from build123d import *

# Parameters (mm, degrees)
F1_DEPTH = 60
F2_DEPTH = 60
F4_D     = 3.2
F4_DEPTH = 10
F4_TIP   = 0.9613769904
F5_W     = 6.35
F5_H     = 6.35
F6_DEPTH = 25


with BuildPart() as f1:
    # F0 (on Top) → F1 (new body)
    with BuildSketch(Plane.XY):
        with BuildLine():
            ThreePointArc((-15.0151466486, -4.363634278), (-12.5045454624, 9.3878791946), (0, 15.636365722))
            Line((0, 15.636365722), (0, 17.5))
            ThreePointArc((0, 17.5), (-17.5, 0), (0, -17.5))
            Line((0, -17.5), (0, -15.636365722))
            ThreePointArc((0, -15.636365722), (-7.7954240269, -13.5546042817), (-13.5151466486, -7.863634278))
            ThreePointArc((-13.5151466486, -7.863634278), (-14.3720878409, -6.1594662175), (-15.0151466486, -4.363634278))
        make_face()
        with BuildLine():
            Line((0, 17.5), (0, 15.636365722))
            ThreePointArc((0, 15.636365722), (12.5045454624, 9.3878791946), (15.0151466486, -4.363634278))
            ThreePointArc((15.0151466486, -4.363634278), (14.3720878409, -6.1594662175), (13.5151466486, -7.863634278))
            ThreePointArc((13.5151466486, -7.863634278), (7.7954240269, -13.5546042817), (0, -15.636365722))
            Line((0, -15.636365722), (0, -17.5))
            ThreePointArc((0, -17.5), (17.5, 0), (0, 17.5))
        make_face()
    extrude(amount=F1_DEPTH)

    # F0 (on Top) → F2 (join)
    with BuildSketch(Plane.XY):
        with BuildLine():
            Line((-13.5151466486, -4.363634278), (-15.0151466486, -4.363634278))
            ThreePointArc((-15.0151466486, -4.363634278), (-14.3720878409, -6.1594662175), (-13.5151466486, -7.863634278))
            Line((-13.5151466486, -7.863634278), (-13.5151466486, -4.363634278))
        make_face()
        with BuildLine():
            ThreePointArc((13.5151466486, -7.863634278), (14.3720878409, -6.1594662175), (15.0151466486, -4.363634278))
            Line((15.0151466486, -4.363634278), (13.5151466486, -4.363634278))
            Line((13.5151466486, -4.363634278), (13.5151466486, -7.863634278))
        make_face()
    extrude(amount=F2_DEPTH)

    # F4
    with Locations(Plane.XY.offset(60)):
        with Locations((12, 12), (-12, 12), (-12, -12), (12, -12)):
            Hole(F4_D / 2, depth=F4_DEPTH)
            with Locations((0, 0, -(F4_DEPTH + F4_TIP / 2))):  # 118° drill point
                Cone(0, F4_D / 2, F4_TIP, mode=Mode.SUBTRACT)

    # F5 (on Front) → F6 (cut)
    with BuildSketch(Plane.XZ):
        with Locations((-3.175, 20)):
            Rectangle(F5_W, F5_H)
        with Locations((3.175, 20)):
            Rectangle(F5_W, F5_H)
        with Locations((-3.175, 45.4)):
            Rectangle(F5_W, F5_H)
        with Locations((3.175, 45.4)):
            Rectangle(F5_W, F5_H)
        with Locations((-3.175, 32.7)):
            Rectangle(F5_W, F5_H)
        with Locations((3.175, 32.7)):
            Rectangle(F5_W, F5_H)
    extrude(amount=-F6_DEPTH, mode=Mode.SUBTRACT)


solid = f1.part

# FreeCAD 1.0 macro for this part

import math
import FreeCAD as App
import Part
import Sketcher
from FreeCAD import Vector

doc = App.newDocument("Part")
body = doc.addObject("PartDesign::Body", "Body")

# Sketch on XY plane
sketch1 = body.newObject("Sketcher::SketchObject", "Sketch")
sketch1.AttachmentSupport = (doc.getObject("XY_Plane"), [""])
sketch1.MapMode = "FlatFace"
sketch1.addGeometry(Part.Circle(Vector(0, 0, 0), Vector(0, 0, 1), 17.5), False)
sketch1.addGeometry(Part.ArcOfCircle(Part.Circle(Vector(0, 0, 0), Vector(0, 0, 1), 15.6), math.radians(90), math.radians(196)), False)
sketch1.addGeometry(Part.ArcOfCircle(Part.Circle(Vector(0, 0, 0), Vector(0, 0, 1), 15.6), math.radians(-16), math.radians(90)), False)
sketch1.addGeometry(Part.ArcOfCircle(Part.Circle(Vector(0, 0, 0), Vector(0, 0, 1), 15.6), math.radians(-30.19), math.radians(-16.2)), False)
sketch1.addGeometry(Part.ArcOfCircle(Part.Circle(Vector(0, 0, 0), Vector(0, 0, 1), 15.6), math.radians(-90), math.radians(-30)), False)
sketch1.addGeometry(Part.ArcOfCircle(Part.Circle(Vector(0, 0, 0), Vector(0, 0, 1), 15.6), math.radians(-150), math.radians(-90)), False)
sketch1.addGeometry(Part.ArcOfCircle(Part.Circle(Vector(0, 0, 0), Vector(0, 0, 1), 15.6), math.radians(-163.8), math.radians(-149.81)), False)
sketch1.addConstraint(Sketcher.Constraint("Tangent", 1, 1, 2, 2))
sketch1.addConstraint(Sketcher.Constraint("Tangent", 2, 1, 3, 2))
sketch1.addConstraint(Sketcher.Constraint("Tangent", 3, 1, 4, 2))
sketch1.addConstraint(Sketcher.Constraint("Tangent", 4, 1, 5, 2))
sketch1.addConstraint(Sketcher.Constraint("Tangent", 5, 1, 6, 2))
sketch1.addConstraint(Sketcher.Constraint("Tangent", 6, 1, 1, 2))
sketch1.addConstraint(Sketcher.Constraint("Coincident", 0, 3, -1, 1))
sketch1.addConstraint(Sketcher.Constraint("Coincident", 1, 3, -1, 1))
sketch1.addConstraint(Sketcher.Constraint("Coincident", 3, 3, -1, 1))
sketch1.addConstraint(Sketcher.Constraint("Equal", 3, 4))
sketch1.addConstraint(Sketcher.Constraint("PointOnObject", 1, 1, -2))
sketch1.addConstraint(Sketcher.Constraint("PointOnObject", 4, 1, -2))
sketch1.addConstraint(Sketcher.Constraint("Horizontal", 3, 1, 5, 1))
sketch1.addConstraint(Sketcher.Constraint("Horizontal", 2, 1, 6, 1))
sketch1.addConstraint(Sketcher.Constraint("Diameter", 0, 35.0))
sketch1.addConstraint(Sketcher.Constraint("DistanceX", 3, 1, 2, 1, 1.5))
sketch1.addConstraint(Sketcher.Constraint("DistanceY", 3, 1, 2, 1, 3.5))
sketch1.addConstraint(Sketcher.Constraint("Radius", 1, 15.636366))
pad1 = body.newObject("PartDesign::Pad", "Pad")
pad1.Profile = sketch1
pad1.Length = 60

# Sketch on XY plane
sketch2 = body.newObject("Sketcher::SketchObject", "Sketch001")
sketch2.AttachmentSupport = (doc.getObject("XY_Plane"), [""])
sketch2.MapMode = "FlatFace"
sketch2.addGeometry(Part.LineSegment(Vector(-13.5, -4.4, 0), Vector(-15, -4.4, 0)), False)
sketch2.addGeometry(Part.ArcOfCircle(Part.Circle(Vector(0, 0, 0), Vector(0, 0, 1), 15.6), math.radians(-163.8), math.radians(-149.81)), False)
sketch2.addGeometry(Part.LineSegment(Vector(-13.5, -7.9, 0), Vector(-13.5, -4.4, 0)), False)
sketch2.addGeometry(Part.ArcOfCircle(Part.Circle(Vector(0, 0, 0), Vector(0, 0, 1), 15.6), math.radians(-30.19), math.radians(-16.2)), False)
sketch2.addGeometry(Part.LineSegment(Vector(15, -4.4, 0), Vector(13.5, -4.4, 0)), False)
sketch2.addGeometry(Part.LineSegment(Vector(13.5, -4.4, 0), Vector(13.5, -7.9, 0)), False)
sketch2.addConstraint(Sketcher.Constraint("Coincident", 0, 2, 1, 1))
sketch2.addConstraint(Sketcher.Constraint("Coincident", 1, 2, 2, 1))
sketch2.addConstraint(Sketcher.Constraint("Coincident", 2, 2, 0, 1))
sketch2.addConstraint(Sketcher.Constraint("Coincident", 3, 2, 4, 1))
sketch2.addConstraint(Sketcher.Constraint("Coincident", 4, 2, 5, 1))
sketch2.addConstraint(Sketcher.Constraint("Coincident", 5, 2, 3, 1))
sketch2.addConstraint(Sketcher.Constraint("Horizontal", 0))
sketch2.addConstraint(Sketcher.Constraint("Vertical", 2))
sketch2.addConstraint(Sketcher.Constraint("Horizontal", 4))
sketch2.addConstraint(Sketcher.Constraint("Vertical", 5))
sketch2.addConstraint(Sketcher.Constraint("Coincident", 1, 3, -1, 1))
sketch2.addConstraint(Sketcher.Constraint("Coincident", 3, 3, -1, 1))
sketch2.addConstraint(Sketcher.Constraint("Equal", 1, 3))
sketch2.addConstraint(Sketcher.Constraint("Symmetric", 2, 2, 4, 2, -2))
sketch2.addConstraint(Sketcher.Constraint("DistanceX", 0, 2, 0, 1, 1.5))
sketch2.addConstraint(Sketcher.Constraint("DistanceY", 2, 1, 2, 2, 3.5))
sketch2.addConstraint(Sketcher.Constraint("Radius", 1, 15.636366))
pad2 = body.newObject("PartDesign::Pad", "Pad001")
pad2.Profile = sketch2
pad2.Length = 60

# Sketch on XY plane
sketch3 = body.newObject("Sketcher::SketchObject", "Sketch002")
sketch3.AttachmentSupport = (doc.getObject("XY_Plane"), [""])
sketch3.MapMode = "FlatFace"
sketch3.AttachmentOffset = App.Placement(Vector(0, 0, 60), App.Rotation())
sketch3.addGeometry(Part.Circle(Vector(12, 12, 0), Vector(0, 0, 1), 1.6), False)
sketch3.addGeometry(Part.Circle(Vector(-12, 12, 0), Vector(0, 0, 1), 1.6), False)
sketch3.addGeometry(Part.Circle(Vector(-12, -12, 0), Vector(0, 0, 1), 1.6), False)
sketch3.addGeometry(Part.Circle(Vector(12, -12, 0), Vector(0, 0, 1), 1.6), False)
sketch3.addConstraint(Sketcher.Constraint("Equal", 0, 1))
sketch3.addConstraint(Sketcher.Constraint("Equal", 1, 2))
sketch3.addConstraint(Sketcher.Constraint("Equal", 2, 3))
sketch3.addConstraint(Sketcher.Constraint("Symmetric", 0, 3, 2, 3, -1, 1))
sketch3.addConstraint(Sketcher.Constraint("Symmetric", 1, 3, 3, 3, -1, 1))
sketch3.addConstraint(Sketcher.Constraint("Symmetric", 0, 3, 1, 3, -2))
sketch3.addConstraint(Sketcher.Constraint("Diameter", 0, 3.2))
sketch3.addConstraint(Sketcher.Constraint("DistanceX", -1, 1, 0, 3, 12.0))
sketch3.addConstraint(Sketcher.Constraint("DistanceY", -1, 1, 0, 3, 12.0))
doc.recompute()
hole = body.newObject("PartDesign::Hole", "Hole")
hole.Profile = sketch3
hole.ThreadType = "None"
hole.Diameter = 3.2
hole.DepthType = "Dimension"
hole.Depth = 10
hole.DrillPoint = "Angled"
hole.DrillPointAngle = 118

# Sketch on XZ plane
sketch4 = body.newObject("Sketcher::SketchObject", "Sketch003")
sketch4.AttachmentSupport = (doc.getObject("XZ_Plane"), [""])
sketch4.MapMode = "FlatFace"
sketch4.addGeometry(Part.LineSegment(Vector(-6, 23, 0), Vector(-6, 17, 0)), False)
sketch4.addGeometry(Part.LineSegment(Vector(-6, 17, 0), Vector(6, 17, 0)), False)
sketch4.addGeometry(Part.LineSegment(Vector(6, 17, 0), Vector(6, 23, 0)), False)
sketch4.addGeometry(Part.LineSegment(Vector(6, 23, 0), Vector(-6, 23, 0)), False)
sketch4.addGeometry(Part.LineSegment(Vector(-6, 49, 0), Vector(-6, 42, 0)), False)
sketch4.addGeometry(Part.LineSegment(Vector(-6, 42, 0), Vector(6, 42, 0)), False)
sketch4.addGeometry(Part.LineSegment(Vector(6, 42, 0), Vector(6, 49, 0)), False)
sketch4.addGeometry(Part.LineSegment(Vector(6, 49, 0), Vector(-6, 49, 0)), False)
sketch4.addGeometry(Part.LineSegment(Vector(-6, 36, 0), Vector(-6, 30, 0)), False)
sketch4.addGeometry(Part.LineSegment(Vector(-6, 30, 0), Vector(6, 30, 0)), False)
sketch4.addGeometry(Part.LineSegment(Vector(6, 30, 0), Vector(6, 36, 0)), False)
sketch4.addGeometry(Part.LineSegment(Vector(6, 36, 0), Vector(-6, 36, 0)), False)
sketch4.addConstraint(Sketcher.Constraint("Coincident", 0, 2, 1, 1))
sketch4.addConstraint(Sketcher.Constraint("Coincident", 1, 2, 2, 1))
sketch4.addConstraint(Sketcher.Constraint("Coincident", 2, 2, 3, 1))
sketch4.addConstraint(Sketcher.Constraint("Coincident", 3, 2, 0, 1))
sketch4.addConstraint(Sketcher.Constraint("Coincident", 4, 2, 5, 1))
sketch4.addConstraint(Sketcher.Constraint("Coincident", 5, 2, 6, 1))
sketch4.addConstraint(Sketcher.Constraint("Coincident", 6, 2, 7, 1))
sketch4.addConstraint(Sketcher.Constraint("Coincident", 7, 2, 4, 1))
sketch4.addConstraint(Sketcher.Constraint("Coincident", 8, 2, 9, 1))
sketch4.addConstraint(Sketcher.Constraint("Coincident", 9, 2, 10, 1))
sketch4.addConstraint(Sketcher.Constraint("Coincident", 10, 2, 11, 1))
sketch4.addConstraint(Sketcher.Constraint("Coincident", 11, 2, 8, 1))
sketch4.addConstraint(Sketcher.Constraint("Vertical", 0))
sketch4.addConstraint(Sketcher.Constraint("Horizontal", 1))
sketch4.addConstraint(Sketcher.Constraint("Vertical", 2))
sketch4.addConstraint(Sketcher.Constraint("Horizontal", 3))
sketch4.addConstraint(Sketcher.Constraint("Vertical", 4))
sketch4.addConstraint(Sketcher.Constraint("Horizontal", 5))
sketch4.addConstraint(Sketcher.Constraint("Vertical", 6))
sketch4.addConstraint(Sketcher.Constraint("Horizontal", 7))
sketch4.addConstraint(Sketcher.Constraint("Vertical", 8))
sketch4.addConstraint(Sketcher.Constraint("Horizontal", 9))
sketch4.addConstraint(Sketcher.Constraint("Vertical", 10))
sketch4.addConstraint(Sketcher.Constraint("Horizontal", 11))
sketch4.addConstraint(Sketcher.Constraint("Vertical", 3, 2, 4, 2))
sketch4.addConstraint(Sketcher.Constraint("Vertical", 2, 2, 5, 2))
sketch4.addConstraint(Sketcher.Constraint("Vertical", 7, 2, 8, 2))
sketch4.addConstraint(Sketcher.Constraint("Vertical", 6, 2, 9, 2))
sketch4.addConstraint(Sketcher.Constraint("Equal", 2, 4))
sketch4.addConstraint(Sketcher.Constraint("Equal", 6, 8))
sketch4.addConstraint(Sketcher.Constraint("DistanceX", 1, 1, 1, 2, 12.7))
sketch4.addConstraint(Sketcher.Constraint("DistanceY", 0, 2, 0, 1, 6.35))
sketch4.addConstraint(Sketcher.Constraint("DistanceY", 0, 2, 4, 2, 25.4))
sketch4.addConstraint(Sketcher.Constraint("DistanceY", 0, 2, 8, 2, 12.7))
sketch4.addConstraint(Sketcher.Constraint("DistanceX", 0, 2, -1, 1, 6.35))
sketch4.addConstraint(Sketcher.Constraint("DistanceY", -1, 1, 0, 2, 16.825))
pocket1 = body.newObject("PartDesign::Pocket", "Pocket")
pocket1.Profile = sketch4
pocket1.Length = 25

doc.recompute()
